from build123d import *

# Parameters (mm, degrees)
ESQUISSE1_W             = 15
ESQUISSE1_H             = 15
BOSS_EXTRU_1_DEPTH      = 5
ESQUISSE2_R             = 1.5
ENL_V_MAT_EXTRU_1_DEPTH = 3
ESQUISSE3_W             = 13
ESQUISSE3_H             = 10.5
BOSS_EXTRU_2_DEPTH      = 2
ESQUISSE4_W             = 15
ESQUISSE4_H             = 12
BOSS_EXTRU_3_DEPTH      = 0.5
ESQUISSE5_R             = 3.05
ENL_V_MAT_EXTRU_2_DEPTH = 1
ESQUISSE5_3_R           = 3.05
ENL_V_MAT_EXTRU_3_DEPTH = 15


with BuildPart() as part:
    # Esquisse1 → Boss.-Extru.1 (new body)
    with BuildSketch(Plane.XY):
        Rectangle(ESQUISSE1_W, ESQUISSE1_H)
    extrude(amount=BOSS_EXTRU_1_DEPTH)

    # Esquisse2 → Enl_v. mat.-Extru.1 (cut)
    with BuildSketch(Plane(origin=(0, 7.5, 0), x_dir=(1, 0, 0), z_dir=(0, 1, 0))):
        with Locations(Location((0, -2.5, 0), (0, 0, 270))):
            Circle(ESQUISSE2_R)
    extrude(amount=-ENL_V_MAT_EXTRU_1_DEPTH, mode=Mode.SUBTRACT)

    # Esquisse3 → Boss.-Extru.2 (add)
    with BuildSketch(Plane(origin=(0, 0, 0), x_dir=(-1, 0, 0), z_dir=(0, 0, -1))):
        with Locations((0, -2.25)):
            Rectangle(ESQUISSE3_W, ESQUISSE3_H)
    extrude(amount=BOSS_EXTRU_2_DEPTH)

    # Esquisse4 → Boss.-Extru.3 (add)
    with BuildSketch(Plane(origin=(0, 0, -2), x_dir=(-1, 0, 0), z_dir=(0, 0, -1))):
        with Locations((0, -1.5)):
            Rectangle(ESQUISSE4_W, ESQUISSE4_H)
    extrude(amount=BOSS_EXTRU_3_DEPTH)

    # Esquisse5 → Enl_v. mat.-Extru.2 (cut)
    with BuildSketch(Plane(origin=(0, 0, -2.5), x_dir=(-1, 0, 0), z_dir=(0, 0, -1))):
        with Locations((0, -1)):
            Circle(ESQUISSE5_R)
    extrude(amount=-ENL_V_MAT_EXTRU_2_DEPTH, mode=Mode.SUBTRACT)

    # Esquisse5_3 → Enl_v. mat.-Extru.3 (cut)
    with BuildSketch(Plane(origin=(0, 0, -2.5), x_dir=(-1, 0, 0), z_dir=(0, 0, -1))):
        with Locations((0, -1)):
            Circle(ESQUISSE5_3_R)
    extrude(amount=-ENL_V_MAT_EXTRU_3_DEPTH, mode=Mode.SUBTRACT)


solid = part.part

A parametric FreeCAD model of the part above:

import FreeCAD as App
import Part
import Sketcher

V = App.Vector


def add_polygon(sketch, points):
    """Adds a closed chain of lines whose ends are joined by coincident constraints."""
    first, n = sketch.GeometryCount, len(points)
    for a, b in zip(points, points[1:] + points[:1]):
        sketch.addGeometry(Part.LineSegment(App.Vector(*a, 0), App.Vector(*b, 0)), False)
    for i in range(n):
        sketch.addConstraint(Sketcher.Constraint("Coincident", first + i, 2, first + (i + 1) % n, 1))

doc = App.newDocument("Part")
params = doc.addObject("Spreadsheet::Sheet", "Params")
for row, (alias, value) in enumerate([
    ("sketch1_width", "15 mm"),
    ("pad1_length", "5 mm"),
    ("sketch2_diameter", "3 mm"),
    ("pocket1_length", "3 mm"),
    ("sketch3_width", "13 mm"),
    ("sketch3_height", "10.5 mm"),
    ("pad2_length", "2 mm"),
    ("sketch4_width", "15 mm"),
    ("sketch4_height", "12 mm"),
    ("pad3_length", "0.5 mm"),
    ("sketch5_diameter", "6.1 mm"),
    ("pocket2_length", "1 mm"),
    ("sketch6_diameter", "6.1 mm"),
    ("pocket3_length", "15 mm"),
], start=1):
    params.set(f"A{row}", alias)
    params.set(f"B{row}", "=" + value)
    params.setAlias(f"B{row}", alias)

body = doc.addObject("PartDesign::Body", "Body")

# Sketch on XY plane
sketch1 = body.newObject("Sketcher::SketchObject", "Sketch")
sketch1.AttachmentSupport = (doc.getObject("XY_Plane"), [""])
sketch1.MapMode = "FlatFace"
add_polygon(sketch1, [(-8, 8), (-8, -8), (8, -8), (8, 8)])  # lines 0-3
sketch1.addConstraint(Sketcher.Constraint("Vertical", 0))
sketch1.addConstraint(Sketcher.Constraint("Horizontal", 1))
sketch1.addConstraint(Sketcher.Constraint("Vertical", 2))
sketch1.addConstraint(Sketcher.Constraint("Horizontal", 3))
sketch1.addConstraint(Sketcher.Constraint("Symmetric", 0, 2, 2, 2, -1, 1))
sketch1.addConstraint(Sketcher.Constraint("Equal", 3, 0))
sketch1.addConstraint(Sketcher.Constraint("DistanceX", 1, 1, 1, 2, 15.0))
sketch1.setExpression("Constraints[10]", "Params.sketch1_width")
pad1 = body.newObject("PartDesign::Pad", "Pad")
pad1.Profile = sketch1
pad1.setExpression("Length", "Params.pad1_length")

# Sketch on XZ plane
sketch2 = body.newObject("Sketcher::SketchObject", "Sketch001")
sketch2.AttachmentSupport = (doc.getObject("XZ_Plane"), [""])
sketch2.MapMode = "FlatFace"
sketch2.AttachmentOffset = App.Placement(V(0, 0, -7.5), App.Rotation())
sketch2.addGeometry(Part.Circle(V(0, 2.5, 0), V(0, 0, 1), 1.5), False)
sketch2.addConstraint(Sketcher.Constraint("PointOnObject", 0, 3, -2))
sketch2.addConstraint(Sketcher.Constraint("Diameter", 0, 3.0))
sketch2.addConstraint(Sketcher.Constraint("DistanceY", -1, 1, 0, 3, 2.5))
sketch2.setExpression("Constraints[1]", "Params.sketch2_diameter")
pocket1 = body.newObject("PartDesign::Pocket", "Pocket")
pocket1.Profile = sketch2
pocket1.setExpression("Length", "Params.pocket1_length")
pocket1.Reversed = True

# Sketch on XY plane
sketch3 = body.newObject("Sketcher::SketchObject", "Sketch002")
sketch3.AttachmentSupport = (doc.getObject("XY_Plane"), [""])
sketch3.MapMode = "FlatFace"
add_polygon(sketch3, [(6, 3), (6, -8), (-6, -8), (-6, 3)])  # lines 0-3
sketch3.addConstraint(Sketcher.Constraint("Vertical", 0))
sketch3.addConstraint(Sketcher.Constraint("Horizontal", 1))
sketch3.addConstraint(Sketcher.Constraint("Vertical", 2))
sketch3.addConstraint(Sketcher.Constraint("Horizontal", 3))
sketch3.addConstraint(Sketcher.Constraint("DistanceX", 1, 2, 1, 1, 13.0))
sketch3.addConstraint(Sketcher.Constraint("DistanceY", 0, 2, 0, 1, 10.5))
sketch3.addConstraint(Sketcher.Constraint("DistanceY", -1, 1, 2, 2, 3.0))
sketch3.addConstraint(Sketcher.Constraint("DistanceX", -1, 1, 0, 2, 6.5))
sketch3.setExpression("Constraints[8]", "Params.sketch3_width")
sketch3.setExpression("Constraints[9]", "Params.sketch3_height")
pad2 = body.newObject("PartDesign::Pad", "Pad001")
pad2.Profile = sketch3
pad2.setExpression("Length", "Params.pad2_length")
pad2.Reversed = True

# Sketch on XY plane
sketch4 = body.newObject("Sketcher::SketchObject", "Sketch003")
sketch4.AttachmentSupport = (doc.getObject("XY_Plane"), [""])
sketch4.MapMode = "FlatFace"
sketch4.AttachmentOffset = App.Placement(V(0, 0, -2), App.Rotation())
add_polygon(sketch4, [(8, 4), (8, -8), (-8, -8), (-8, 4)])  # lines 0-3
sketch4.addConstraint(Sketcher.Constraint("Vertical", 0))
sketch4.addConstraint(Sketcher.Constraint("Horizontal", 1))
sketch4.addConstraint(Sketcher.Constraint("Vertical", 2))
sketch4.addConstraint(Sketcher.Constraint("Horizontal", 3))
sketch4.addConstraint(Sketcher.Constraint("DistanceX", 1, 2, 1, 1, 15.0))
sketch4.addConstraint(Sketcher.Constraint("DistanceY", 0, 2, 0, 1, 12.0))
sketch4.addConstraint(Sketcher.Constraint("DistanceX", -1, 1, 0, 2, 7.5))
sketch4.addConstraint(Sketcher.Constraint("DistanceY", 0, 2, -1, 1, 7.5))
sketch4.setExpression("Constraints[8]", "Params.sketch4_width")
sketch4.setExpression("Constraints[9]", "Params.sketch4_height")
pad3 = body.newObject("PartDesign::Pad", "Pad002")
pad3.Profile = sketch4
pad3.setExpression("Length", "Params.pad3_length")
pad3.Reversed = True

# Sketch on XY plane
sketch5 = body.newObject("Sketcher::SketchObject", "Sketch004")
sketch5.AttachmentSupport = (doc.getObject("XY_Plane"), [""])
sketch5.MapMode = "FlatFace"
sketch5.AttachmentOffset = App.Placement(V(0, 0, -2.5), App.Rotation())
sketch5.addGeometry(Part.Circle(V(0, -1, 0), V(0, 0, 1), 3), False)
sketch5.addConstraint(Sketcher.Constraint("PointOnObject", 0, 3, -2))
sketch5.addConstraint(Sketcher.Constraint("Diameter", 0, 6.1))
sketch5.addConstraint(Sketcher.Constraint("DistanceY", 0, 3, -1, 1, 1.0))
sketch5.setExpression("Constraints[1]", "Params.sketch5_diameter")
pocket2 = body.newObject("PartDesign::Pocket", "Pocket001")
pocket2.Profile = sketch5
pocket2.setExpression("Length", "Params.pocket2_length")
pocket2.Reversed = True

# Sketch on XY plane
sketch6 = body.newObject("Sketcher::SketchObject", "Sketch005")
sketch6.AttachmentSupport = (doc.getObject("XY_Plane"), [""])
sketch6.MapMode = "FlatFace"
sketch6.AttachmentOffset = App.Placement(V(0, 0, -2.5), App.Rotation())
sketch6.addGeometry(Part.Circle(V(0, -1, 0), V(0, 0, 1), 3), False)
sketch6.addConstraint(Sketcher.Constraint("PointOnObject", 0, 3, -2))
sketch6.addConstraint(Sketcher.Constraint("Diameter", 0, 6.1))
sketch6.addConstraint(Sketcher.Constraint("DistanceY", 0, 3, -1, 1, 1.0))
sketch6.setExpression("Constraints[1]", "Params.sketch6_diameter")
pocket3 = body.newObject("PartDesign::Pocket", "Pocket002")
pocket3.Profile = sketch6
pocket3.setExpression("Length", "Params.pocket3_length")
pocket3.Reversed = True

doc.recompute()
